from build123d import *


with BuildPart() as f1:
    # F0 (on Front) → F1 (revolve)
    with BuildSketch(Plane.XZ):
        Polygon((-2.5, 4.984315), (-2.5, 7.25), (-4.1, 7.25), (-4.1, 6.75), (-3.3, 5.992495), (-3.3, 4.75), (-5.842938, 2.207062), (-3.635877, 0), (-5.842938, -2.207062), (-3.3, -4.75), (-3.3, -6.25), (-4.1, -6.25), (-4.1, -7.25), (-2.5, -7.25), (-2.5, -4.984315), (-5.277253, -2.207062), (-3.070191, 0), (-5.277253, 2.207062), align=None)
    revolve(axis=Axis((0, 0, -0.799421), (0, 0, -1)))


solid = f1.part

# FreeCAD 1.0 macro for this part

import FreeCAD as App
import Part
import Sketcher
from FreeCAD import Vector


def add_polygon(sketch, points):
    """Adds a closed chain of lines whose ends are joined by coincident constraints."""
    first, n = sketch.GeometryCount, len(points)
    for a, b in zip(points, points[1:] + points[:1]):
        sketch.addGeometry(Part.LineSegment(App.Vector(*a, 0), App.Vector(*b, 0)), False)
    for i in range(n):
        sketch.addConstraint(Sketcher.Constraint("Coincident", first + i, 2, first + (i + 1) % n, 1))

doc = App.newDocument("Part")
body = doc.addObject("PartDesign::Body", "Body")

sketch1 = doc.addObject("Sketcher::SketchObject", "Sketch")
body.addObject(sketch1)
sketch1.AttachmentSupport = (doc.XZ_Plane, [""])
sketch1.MapMode = "FlatFace"
add_polygon(sketch1, [(-2.5, 5), (-2.5, 7.2), (-4.1, 7.2), (-4.1, 6.8), (-3.3, 6), (-3.3, 4.8), (-5.8, 2.2), (-3.6, 0), (-5.8, -2.2), (-3.3, -4.8), (-3.3, -6.2), (-4.1, -6.2), (-4.1, -7.2), (-2.5, -7.2), (-2.5, -5), (-5.3, -2.2), (-3.1, 0), (-5.3, 2.2)])
sketch1.addConstraint(Sketcher.Constraint("Vertical", 0))
sketch1.addConstraint(Sketcher.Constraint("Horizontal", 1))
sketch1.addConstraint(Sketcher.Constraint("Vertical", 2))
sketch1.addConstraint(Sketcher.Constraint("Vertical", 4))
sketch1.addConstraint(Sketcher.Constraint("Vertical", 9))
sketch1.addConstraint(Sketcher.Constraint("Horizontal", 10))
sketch1.addConstraint(Sketcher.Constraint("Vertical", 11))
sketch1.addConstraint(Sketcher.Constraint("Horizontal", 12))
sketch1.addConstraint(Sketcher.Constraint("Vertical", 13))
sketch1.addConstraint(Sketcher.Constraint("Symmetric", 5, 2, 7, 2, -1))
sketch1.addConstraint(Sketcher.Constraint("Symmetric", 4, 2, 8, 2, -1))
sketch1.addConstraint(Sketcher.Constraint("Symmetric", 1, 2, 11, 2, -1))
sketch1.addConstraint(Sketcher.Constraint("Symmetric", 14, 2, 16, 2, -1))
sketch1.addConstraint(Sketcher.Constraint("Symmetric", 13, 2, 17, 2, -1))
sketch1.addConstraint(Sketcher.Constraint("PointOnObject", 6, 2, -1))
sketch1.addConstraint(Sketcher.Constraint("PointOnObject", 15, 2, -1))
sketch1.addConstraint(Sketcher.Constraint("Perpendicular", 5, 6))
sketch1.addConstraint(Sketcher.Constraint("Perpendicular", 6, 7))
sketch1.addConstraint(Sketcher.Constraint("Parallel", 8, 14))
sketch1.addConstraint(Sketcher.Constraint("Perpendicular", 14, 15))
sketch1.addConstraint(Sketcher.Constraint("Horizontal", 7, 2, 14, 2))
sketch1.addConstraint(Sketcher.Constraint("DistanceY", 11, 2, 11, 1, 1.0))
sketch1.addConstraint(Sketcher.Constraint("DistanceX", 1, 2, 1, 1, 1.6))
sketch1.addConstraint(Sketcher.Constraint("DistanceX", 10, 2, 10, 1, 0.8))
sketch1.addConstraint(Sketcher.Constraint("DistanceY", 2, 2, 2, 1, 0.5))
sketch1.addConstraint(Sketcher.Constraint("DistanceY", 9, 2, 9, 1, 1.5))
sketch1.addConstraint(Sketcher.Constraint("DistanceY", 9, 2, 4, 2, 11.0))
sketch1.addConstraint(Sketcher.Constraint("DistanceX", 0, 2, -1, 1, 2.5))
sketch1.addConstraint(Sketcher.Constraint("Distance", 14, 3.927629))
sketch1.addConstraint(Sketcher.Constraint("DistanceY", 0, 1, 0, 2, 2.265685))
sketch1.addConstraint(Sketcher.Constraint("DistanceY", 4, 2, 4, 1, 1.242495))
revolution = doc.addObject("PartDesign::Revolution", "Revolution")
body.addObject(revolution)
revolution.Profile = sketch1
revolution.ReferenceAxis = (sketch1, ["V_Axis"])
revolution.Angle = 360

doc.recompute()
